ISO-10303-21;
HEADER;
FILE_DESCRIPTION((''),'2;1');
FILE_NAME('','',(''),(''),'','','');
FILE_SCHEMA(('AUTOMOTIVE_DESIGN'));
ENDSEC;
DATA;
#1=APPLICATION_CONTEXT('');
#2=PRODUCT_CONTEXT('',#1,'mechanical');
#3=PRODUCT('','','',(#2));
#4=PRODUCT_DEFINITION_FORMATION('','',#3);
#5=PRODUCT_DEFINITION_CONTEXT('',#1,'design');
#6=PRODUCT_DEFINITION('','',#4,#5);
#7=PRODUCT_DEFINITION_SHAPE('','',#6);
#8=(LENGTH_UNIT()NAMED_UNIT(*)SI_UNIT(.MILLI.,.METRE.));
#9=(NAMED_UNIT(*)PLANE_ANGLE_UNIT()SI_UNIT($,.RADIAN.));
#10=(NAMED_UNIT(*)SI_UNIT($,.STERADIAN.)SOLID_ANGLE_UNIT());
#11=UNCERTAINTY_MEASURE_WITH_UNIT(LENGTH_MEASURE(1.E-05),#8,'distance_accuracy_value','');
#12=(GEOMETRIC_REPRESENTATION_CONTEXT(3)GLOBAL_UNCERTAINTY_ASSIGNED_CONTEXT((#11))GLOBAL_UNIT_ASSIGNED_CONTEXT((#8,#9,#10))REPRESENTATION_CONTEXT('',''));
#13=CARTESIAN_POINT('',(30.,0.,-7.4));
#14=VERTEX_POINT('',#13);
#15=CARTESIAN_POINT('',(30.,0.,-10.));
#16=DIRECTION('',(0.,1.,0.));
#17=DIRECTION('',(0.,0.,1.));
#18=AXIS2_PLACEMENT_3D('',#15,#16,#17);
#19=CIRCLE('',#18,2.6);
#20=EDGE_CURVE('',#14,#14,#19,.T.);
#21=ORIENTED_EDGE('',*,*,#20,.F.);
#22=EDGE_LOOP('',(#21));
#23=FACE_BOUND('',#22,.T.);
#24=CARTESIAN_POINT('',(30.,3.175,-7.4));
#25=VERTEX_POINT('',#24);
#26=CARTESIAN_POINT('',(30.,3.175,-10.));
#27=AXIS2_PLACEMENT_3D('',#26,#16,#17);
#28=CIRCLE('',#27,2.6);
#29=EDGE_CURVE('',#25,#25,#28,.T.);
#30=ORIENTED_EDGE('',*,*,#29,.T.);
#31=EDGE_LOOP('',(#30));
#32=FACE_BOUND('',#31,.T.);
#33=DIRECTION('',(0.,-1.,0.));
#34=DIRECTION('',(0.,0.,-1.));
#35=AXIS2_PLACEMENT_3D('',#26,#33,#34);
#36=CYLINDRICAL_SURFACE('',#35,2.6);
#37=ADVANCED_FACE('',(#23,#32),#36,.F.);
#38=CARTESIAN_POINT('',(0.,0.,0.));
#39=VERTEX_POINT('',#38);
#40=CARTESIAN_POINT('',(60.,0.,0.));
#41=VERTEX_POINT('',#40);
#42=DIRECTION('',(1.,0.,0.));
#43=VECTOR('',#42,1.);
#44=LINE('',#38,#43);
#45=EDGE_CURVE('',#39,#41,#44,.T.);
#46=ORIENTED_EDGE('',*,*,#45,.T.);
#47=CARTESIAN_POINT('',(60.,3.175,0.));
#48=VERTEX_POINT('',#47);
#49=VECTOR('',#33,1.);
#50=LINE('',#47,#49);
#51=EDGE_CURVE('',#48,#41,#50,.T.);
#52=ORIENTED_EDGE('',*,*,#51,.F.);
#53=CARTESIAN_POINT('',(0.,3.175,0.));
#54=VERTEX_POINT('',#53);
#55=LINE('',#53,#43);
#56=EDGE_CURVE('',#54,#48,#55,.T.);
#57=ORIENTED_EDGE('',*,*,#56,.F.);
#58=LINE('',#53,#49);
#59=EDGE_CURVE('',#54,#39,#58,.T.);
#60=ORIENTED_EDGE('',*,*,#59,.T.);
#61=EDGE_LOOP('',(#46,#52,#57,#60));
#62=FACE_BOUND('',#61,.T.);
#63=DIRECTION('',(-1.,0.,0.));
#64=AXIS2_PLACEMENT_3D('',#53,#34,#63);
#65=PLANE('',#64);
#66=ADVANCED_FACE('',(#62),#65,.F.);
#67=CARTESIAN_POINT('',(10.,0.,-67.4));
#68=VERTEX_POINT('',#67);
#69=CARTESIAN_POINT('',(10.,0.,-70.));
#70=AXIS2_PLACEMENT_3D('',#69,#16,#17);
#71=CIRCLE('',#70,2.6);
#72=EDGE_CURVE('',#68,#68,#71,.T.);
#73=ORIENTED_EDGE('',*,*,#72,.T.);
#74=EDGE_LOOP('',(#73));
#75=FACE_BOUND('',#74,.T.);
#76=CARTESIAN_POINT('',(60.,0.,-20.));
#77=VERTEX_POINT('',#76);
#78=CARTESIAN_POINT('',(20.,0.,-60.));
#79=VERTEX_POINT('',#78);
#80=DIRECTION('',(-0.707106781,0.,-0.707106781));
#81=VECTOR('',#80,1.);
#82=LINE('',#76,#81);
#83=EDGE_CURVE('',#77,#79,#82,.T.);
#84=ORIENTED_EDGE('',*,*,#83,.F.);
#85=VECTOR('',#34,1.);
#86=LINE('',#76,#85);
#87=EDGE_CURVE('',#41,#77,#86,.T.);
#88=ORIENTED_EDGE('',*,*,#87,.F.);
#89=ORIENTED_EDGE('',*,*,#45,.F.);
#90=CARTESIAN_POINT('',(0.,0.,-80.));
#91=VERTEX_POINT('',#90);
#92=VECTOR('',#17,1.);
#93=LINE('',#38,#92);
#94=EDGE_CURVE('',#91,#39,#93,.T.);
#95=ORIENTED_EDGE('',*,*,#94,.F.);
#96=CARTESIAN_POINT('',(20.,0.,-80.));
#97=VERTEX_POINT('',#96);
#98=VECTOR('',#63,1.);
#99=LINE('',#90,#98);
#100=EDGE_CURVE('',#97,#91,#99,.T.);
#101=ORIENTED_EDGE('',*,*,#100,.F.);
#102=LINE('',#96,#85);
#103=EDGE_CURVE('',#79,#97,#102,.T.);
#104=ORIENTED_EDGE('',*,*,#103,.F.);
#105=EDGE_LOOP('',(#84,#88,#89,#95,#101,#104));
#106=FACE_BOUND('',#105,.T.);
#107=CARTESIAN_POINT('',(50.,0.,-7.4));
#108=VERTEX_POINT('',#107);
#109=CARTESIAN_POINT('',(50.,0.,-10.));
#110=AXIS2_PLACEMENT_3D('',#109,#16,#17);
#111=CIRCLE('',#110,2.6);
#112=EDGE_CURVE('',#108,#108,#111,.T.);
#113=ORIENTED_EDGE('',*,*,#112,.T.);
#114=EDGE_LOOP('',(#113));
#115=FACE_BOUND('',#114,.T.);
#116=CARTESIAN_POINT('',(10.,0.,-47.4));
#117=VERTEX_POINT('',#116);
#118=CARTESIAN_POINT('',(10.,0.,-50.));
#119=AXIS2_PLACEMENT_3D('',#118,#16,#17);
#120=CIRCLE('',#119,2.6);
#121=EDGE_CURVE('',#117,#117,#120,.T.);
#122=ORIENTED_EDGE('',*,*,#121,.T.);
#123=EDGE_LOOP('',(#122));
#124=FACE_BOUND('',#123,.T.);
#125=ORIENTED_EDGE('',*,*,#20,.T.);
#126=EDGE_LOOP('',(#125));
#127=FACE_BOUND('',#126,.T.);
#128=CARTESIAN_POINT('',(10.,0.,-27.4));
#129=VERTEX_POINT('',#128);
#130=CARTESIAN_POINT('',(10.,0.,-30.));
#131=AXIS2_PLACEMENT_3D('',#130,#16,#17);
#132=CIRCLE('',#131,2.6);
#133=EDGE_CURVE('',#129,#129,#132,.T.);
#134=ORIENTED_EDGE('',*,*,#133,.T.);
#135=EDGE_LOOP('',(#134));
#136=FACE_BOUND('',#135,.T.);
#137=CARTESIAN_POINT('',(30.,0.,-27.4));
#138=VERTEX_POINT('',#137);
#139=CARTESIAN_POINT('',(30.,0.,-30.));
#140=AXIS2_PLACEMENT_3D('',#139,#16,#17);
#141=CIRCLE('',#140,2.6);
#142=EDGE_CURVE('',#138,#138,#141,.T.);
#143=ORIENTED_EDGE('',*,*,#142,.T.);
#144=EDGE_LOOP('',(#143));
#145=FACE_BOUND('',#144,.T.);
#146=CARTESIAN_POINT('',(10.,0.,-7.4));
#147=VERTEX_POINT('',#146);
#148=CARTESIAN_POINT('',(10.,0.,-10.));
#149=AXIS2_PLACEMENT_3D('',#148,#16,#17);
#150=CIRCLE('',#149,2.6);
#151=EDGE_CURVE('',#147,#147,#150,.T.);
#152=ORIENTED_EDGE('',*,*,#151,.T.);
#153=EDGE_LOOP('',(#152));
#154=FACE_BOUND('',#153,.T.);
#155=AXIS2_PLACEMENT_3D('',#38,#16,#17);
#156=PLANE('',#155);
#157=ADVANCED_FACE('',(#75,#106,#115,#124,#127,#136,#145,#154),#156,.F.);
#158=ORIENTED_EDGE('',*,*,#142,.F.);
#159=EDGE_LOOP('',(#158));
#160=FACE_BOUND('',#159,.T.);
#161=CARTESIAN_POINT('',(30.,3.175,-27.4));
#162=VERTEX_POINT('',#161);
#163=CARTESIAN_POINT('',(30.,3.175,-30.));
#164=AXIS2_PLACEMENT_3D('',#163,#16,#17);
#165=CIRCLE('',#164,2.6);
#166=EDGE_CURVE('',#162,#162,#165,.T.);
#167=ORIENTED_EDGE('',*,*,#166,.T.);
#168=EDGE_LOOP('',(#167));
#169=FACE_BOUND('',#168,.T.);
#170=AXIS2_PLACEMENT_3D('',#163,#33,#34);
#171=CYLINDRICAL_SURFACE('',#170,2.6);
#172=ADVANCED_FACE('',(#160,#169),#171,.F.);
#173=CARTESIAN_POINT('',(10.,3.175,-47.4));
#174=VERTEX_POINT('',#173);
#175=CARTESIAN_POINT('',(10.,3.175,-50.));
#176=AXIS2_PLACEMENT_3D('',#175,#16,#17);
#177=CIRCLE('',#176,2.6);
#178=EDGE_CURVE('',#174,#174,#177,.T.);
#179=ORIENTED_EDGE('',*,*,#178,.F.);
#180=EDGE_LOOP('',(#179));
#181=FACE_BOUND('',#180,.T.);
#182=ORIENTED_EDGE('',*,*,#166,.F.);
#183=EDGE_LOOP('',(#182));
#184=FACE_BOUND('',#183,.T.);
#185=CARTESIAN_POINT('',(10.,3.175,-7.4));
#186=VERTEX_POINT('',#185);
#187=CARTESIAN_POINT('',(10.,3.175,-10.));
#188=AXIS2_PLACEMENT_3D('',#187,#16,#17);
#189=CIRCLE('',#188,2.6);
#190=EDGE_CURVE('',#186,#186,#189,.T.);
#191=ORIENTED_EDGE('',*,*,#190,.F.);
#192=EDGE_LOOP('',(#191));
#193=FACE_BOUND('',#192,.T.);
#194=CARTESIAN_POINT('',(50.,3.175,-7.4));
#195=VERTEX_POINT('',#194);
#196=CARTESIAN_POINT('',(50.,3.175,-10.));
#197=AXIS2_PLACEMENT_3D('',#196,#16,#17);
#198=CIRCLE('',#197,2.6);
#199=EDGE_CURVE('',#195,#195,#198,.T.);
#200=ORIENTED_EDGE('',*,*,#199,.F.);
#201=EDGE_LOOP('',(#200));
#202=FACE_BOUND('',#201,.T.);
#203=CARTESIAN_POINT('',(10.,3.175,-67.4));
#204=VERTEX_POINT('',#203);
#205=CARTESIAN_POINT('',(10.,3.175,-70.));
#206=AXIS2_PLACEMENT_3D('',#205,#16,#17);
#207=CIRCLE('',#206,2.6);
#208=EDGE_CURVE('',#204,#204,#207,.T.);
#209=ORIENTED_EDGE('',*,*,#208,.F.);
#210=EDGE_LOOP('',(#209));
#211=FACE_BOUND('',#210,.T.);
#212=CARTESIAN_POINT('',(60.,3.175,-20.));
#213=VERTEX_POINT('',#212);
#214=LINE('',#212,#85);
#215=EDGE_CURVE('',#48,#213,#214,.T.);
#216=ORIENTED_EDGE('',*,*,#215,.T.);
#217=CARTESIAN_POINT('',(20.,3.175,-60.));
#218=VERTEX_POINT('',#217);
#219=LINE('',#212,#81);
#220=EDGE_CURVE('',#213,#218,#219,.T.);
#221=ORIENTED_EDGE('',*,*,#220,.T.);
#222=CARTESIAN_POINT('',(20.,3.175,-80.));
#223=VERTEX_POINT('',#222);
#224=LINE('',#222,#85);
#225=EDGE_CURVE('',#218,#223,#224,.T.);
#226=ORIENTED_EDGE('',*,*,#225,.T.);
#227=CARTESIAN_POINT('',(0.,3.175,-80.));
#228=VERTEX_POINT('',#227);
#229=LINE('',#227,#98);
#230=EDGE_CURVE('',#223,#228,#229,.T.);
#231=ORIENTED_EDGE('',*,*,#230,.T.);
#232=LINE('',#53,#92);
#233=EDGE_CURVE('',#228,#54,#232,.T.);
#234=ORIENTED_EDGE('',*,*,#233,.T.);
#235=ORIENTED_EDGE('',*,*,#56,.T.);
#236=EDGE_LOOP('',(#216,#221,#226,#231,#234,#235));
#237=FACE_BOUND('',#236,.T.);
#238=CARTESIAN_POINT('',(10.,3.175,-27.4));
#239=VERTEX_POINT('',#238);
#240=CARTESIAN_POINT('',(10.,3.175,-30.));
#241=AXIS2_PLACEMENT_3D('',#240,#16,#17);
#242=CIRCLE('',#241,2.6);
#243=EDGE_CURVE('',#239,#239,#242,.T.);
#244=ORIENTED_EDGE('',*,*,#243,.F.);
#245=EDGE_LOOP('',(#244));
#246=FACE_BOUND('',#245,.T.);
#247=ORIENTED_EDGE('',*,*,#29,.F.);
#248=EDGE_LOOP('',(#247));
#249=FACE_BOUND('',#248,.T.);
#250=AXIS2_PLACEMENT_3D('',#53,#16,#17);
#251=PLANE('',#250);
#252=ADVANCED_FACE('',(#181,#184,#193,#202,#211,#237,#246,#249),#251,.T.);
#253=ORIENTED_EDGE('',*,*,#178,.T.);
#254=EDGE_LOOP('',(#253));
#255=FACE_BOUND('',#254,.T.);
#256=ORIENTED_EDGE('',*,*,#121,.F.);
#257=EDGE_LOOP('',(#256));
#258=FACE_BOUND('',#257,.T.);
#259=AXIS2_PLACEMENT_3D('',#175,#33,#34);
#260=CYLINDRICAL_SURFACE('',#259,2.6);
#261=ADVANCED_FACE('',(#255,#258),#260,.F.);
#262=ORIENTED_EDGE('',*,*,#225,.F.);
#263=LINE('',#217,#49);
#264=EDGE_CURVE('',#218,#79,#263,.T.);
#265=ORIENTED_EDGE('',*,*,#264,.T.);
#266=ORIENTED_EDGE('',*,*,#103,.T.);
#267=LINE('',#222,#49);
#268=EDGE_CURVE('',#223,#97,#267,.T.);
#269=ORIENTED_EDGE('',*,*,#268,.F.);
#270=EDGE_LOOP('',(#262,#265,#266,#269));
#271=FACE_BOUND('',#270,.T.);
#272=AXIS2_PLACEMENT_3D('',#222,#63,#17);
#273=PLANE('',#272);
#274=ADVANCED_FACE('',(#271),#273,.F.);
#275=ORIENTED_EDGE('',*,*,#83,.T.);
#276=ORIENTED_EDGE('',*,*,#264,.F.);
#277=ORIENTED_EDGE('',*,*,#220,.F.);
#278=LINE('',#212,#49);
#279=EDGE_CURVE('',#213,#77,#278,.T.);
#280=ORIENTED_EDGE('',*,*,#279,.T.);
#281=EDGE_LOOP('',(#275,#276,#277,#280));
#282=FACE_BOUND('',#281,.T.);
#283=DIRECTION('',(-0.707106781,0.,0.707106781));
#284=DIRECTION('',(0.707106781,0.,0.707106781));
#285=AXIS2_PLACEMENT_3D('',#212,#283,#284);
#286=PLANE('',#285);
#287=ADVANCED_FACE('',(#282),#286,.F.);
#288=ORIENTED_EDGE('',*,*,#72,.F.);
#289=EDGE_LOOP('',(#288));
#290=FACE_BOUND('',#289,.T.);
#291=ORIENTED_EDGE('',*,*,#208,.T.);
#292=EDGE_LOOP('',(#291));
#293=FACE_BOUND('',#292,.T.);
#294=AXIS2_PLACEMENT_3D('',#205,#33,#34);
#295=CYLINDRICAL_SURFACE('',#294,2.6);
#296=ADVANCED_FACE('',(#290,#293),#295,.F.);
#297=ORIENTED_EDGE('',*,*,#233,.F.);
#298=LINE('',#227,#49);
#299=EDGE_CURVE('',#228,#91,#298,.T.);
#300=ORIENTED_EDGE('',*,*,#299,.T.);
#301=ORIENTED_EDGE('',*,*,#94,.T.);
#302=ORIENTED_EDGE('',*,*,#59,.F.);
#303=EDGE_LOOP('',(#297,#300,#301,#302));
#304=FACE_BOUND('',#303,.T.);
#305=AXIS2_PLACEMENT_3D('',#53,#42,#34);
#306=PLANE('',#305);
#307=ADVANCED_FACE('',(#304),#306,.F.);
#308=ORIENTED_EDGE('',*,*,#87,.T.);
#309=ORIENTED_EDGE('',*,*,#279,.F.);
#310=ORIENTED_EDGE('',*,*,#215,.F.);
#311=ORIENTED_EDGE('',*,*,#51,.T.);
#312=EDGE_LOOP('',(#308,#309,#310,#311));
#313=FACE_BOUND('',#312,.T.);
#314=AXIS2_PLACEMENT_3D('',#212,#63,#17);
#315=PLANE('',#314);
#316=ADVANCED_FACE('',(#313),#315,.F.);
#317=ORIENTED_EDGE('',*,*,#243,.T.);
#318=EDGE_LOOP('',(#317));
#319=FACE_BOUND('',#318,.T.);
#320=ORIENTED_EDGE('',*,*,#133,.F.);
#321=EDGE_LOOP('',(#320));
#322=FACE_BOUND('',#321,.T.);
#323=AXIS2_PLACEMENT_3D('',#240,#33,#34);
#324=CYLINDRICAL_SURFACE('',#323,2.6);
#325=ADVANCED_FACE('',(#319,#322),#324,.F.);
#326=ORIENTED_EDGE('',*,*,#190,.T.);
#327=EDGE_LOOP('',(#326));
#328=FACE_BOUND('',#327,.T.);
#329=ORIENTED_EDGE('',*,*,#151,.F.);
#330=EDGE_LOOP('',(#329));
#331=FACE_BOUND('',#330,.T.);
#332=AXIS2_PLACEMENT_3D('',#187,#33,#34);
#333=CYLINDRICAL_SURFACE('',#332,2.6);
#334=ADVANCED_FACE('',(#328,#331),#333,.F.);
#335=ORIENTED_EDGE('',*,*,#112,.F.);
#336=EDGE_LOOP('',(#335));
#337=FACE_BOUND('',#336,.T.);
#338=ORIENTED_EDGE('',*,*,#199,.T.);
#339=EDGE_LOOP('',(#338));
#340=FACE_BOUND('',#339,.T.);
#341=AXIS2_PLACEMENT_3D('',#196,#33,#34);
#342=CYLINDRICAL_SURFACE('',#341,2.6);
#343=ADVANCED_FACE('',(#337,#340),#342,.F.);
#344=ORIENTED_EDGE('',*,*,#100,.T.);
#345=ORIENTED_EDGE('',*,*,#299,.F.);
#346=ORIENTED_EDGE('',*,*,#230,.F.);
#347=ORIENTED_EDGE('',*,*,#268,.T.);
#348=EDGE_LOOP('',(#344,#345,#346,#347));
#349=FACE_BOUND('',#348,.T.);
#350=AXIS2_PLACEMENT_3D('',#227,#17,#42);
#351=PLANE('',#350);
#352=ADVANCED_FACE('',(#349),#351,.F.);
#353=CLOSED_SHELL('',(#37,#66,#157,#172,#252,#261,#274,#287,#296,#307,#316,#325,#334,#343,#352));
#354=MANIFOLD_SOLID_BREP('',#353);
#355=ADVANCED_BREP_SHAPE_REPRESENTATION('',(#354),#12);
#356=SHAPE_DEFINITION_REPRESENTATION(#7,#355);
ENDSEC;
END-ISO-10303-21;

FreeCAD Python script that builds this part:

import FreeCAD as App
import Part
import Sketcher

V = App.Vector
Q = App.Units.Quantity

doc = App.newDocument("Part")
body = doc.addObject("PartDesign::Body", "Body")

# Sketch on XZ plane
sketch1 = body.newObject("Sketcher::SketchObject", "Sketch")
sketch1.AttachmentSupport = (doc.getObject("XZ_Plane"), [""])
sketch1.MapMode = "FlatFace"
sketch1.addGeometry(Part.LineSegment(V(60, -20, 0), V(20, -60, 0)), False)
sketch1.addGeometry(Part.LineSegment(V(20, -60, 0), V(20, -80, 0)), False)
sketch1.addGeometry(Part.LineSegment(V(20, -80, 0), V(0, -80, 0)), False)
sketch1.addGeometry(Part.LineSegment(V(0, -80, 0), V(0, 0, 0)), False)
sketch1.addGeometry(Part.LineSegment(V(0, 0, 0), V(60, 0, 0)), False)
sketch1.addGeometry(Part.LineSegment(V(60, 0, 0), V(60, -20, 0)), False)
sketch1.addGeometry(Part.Circle(V(10, -10, 0), V(0, 0, 1), 2.6), False)
sketch1.addGeometry(Part.Circle(V(10, -30, 0), V(0, 0, 1), 2.6), False)
sketch1.addGeometry(Part.Circle(V(30, -10, 0), V(0, 0, 1), 2.6), False)
sketch1.addGeometry(Part.Circle(V(50, -10, 0), V(0, 0, 1), 2.6), False)
sketch1.addGeometry(Part.Circle(V(30, -30, 0), V(0, 0, 1), 2.6), False)
sketch1.addGeometry(Part.Circle(V(10, -50, 0), V(0, 0, 1), 2.6), False)
sketch1.addGeometry(Part.Circle(V(10, -70, 0), V(0, 0, 1), 2.6), False)
sketch1.addConstraint(Sketcher.Constraint("Coincident", 0, 2, 1, 1))
sketch1.addConstraint(Sketcher.Constraint("Coincident", 1, 2, 2, 1))
sketch1.addConstraint(Sketcher.Constraint("Coincident", 2, 2, 3, 1))
sketch1.addConstraint(Sketcher.Constraint("Coincident", 3, 2, 4, 1))
sketch1.addConstraint(Sketcher.Constraint("Coincident", 4, 2, 5, 1))
sketch1.addConstraint(Sketcher.Constraint("Coincident", 5, 2, 0, 1))
sketch1.addConstraint(Sketcher.Constraint("Vertical", 1))
sketch1.addConstraint(Sketcher.Constraint("Horizontal", 2))
sketch1.addConstraint(Sketcher.Constraint("Vertical", 3))
sketch1.addConstraint(Sketcher.Constraint("Horizontal", 4))
sketch1.addConstraint(Sketcher.Constraint("Vertical", 5))
sketch1.addConstraint(Sketcher.Constraint("Coincident", 3, 2, -1, 1))
sketch1.addConstraint(Sketcher.Constraint("Equal", 6, 7))
sketch1.addConstraint(Sketcher.Constraint("Equal", 7, 8))
sketch1.addConstraint(Sketcher.Constraint("Equal", 8, 9))
sketch1.addConstraint(Sketcher.Constraint("Equal", 9, 10))
sketch1.addConstraint(Sketcher.Constraint("Equal", 10, 11))
sketch1.addConstraint(Sketcher.Constraint("Equal", 11, 12))
sketch1.addConstraint(Sketcher.Constraint("Horizontal", 6, 3, 8, 3))
sketch1.addConstraint(Sketcher.Constraint("Horizontal", 8, 3, 9, 3))
sketch1.addConstraint(Sketcher.Constraint("Horizontal", 7, 3, 10, 3))
sketch1.addConstraint(Sketcher.Constraint("Vertical", 6, 3, 7, 3))
sketch1.addConstraint(Sketcher.Constraint("Vertical", 8, 3, 10, 3))
sketch1.addConstraint(Sketcher.Constraint("Vertical", 7, 3, 11, 3))
sketch1.addConstraint(Sketcher.Constraint("Vertical", 11, 3, 12, 3))
sketch1.addConstraint(Sketcher.Constraint("Equal", 2, 1))
sketch1.addConstraint(Sketcher.Constraint("Equal", 1, 5))
sketch1.addConstraint(Sketcher.Constraint("Diameter", 6, Q("5.2 mm")))
sketch1.addConstraint(Sketcher.Constraint("DistanceX", 2, 2, 2, 1, Q("20 mm")))
sketch1.addConstraint(Sketcher.Constraint("DistanceX", 4, 1, 4, 2, Q("60 mm")))
sketch1.addConstraint(Sketcher.Constraint("DistanceY", 3, 1, 3, 2, Q("80 mm")))
sketch1.addConstraint(Sketcher.Constraint("DistanceX", -1, 1, 6, 3, Q("10 mm")))
sketch1.addConstraint(Sketcher.Constraint("DistanceY", 6, 3, -1, 1, Q("10 mm")))
sketch1.addConstraint(Sketcher.Constraint("DistanceY", 7, 3, -1, 1, Q("30 mm")))
sketch1.addConstraint(Sketcher.Constraint("DistanceX", -1, 1, 8, 3, Q("30 mm")))
sketch1.addConstraint(Sketcher.Constraint("DistanceX", -1, 1, 9, 3, Q("50 mm")))
sketch1.addConstraint(Sketcher.Constraint("DistanceY", 11, 3, -1, 1, Q("50 mm")))
sketch1.addConstraint(Sketcher.Constraint("DistanceY", 12, 3, -1, 1, Q("70 mm")))
pad1 = body.newObject("PartDesign::Pad", "Pad")
pad1.Profile = sketch1
pad1.Length = 3.175
pad1.Reversed = True

doc.recompute()
